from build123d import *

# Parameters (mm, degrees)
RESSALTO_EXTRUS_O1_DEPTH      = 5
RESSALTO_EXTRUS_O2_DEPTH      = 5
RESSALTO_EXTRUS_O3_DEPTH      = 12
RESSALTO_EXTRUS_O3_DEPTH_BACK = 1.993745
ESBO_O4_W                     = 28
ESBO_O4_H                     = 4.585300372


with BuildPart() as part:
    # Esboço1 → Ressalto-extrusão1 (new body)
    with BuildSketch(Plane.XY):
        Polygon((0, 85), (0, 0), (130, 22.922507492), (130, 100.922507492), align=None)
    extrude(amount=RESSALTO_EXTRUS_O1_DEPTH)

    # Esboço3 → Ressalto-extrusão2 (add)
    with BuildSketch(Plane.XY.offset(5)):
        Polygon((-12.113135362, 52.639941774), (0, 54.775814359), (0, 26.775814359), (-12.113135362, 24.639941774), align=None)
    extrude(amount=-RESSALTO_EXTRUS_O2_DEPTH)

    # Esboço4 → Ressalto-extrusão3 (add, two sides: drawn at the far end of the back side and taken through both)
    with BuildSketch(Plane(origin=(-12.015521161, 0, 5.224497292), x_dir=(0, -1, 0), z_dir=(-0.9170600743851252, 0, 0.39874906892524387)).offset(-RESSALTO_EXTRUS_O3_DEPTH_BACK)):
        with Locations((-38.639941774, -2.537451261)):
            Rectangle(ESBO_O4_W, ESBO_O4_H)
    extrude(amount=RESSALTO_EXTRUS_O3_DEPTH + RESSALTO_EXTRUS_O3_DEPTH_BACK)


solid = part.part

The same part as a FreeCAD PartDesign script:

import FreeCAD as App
import Part
import Sketcher

V = App.Vector
Q = App.Units.Quantity

doc = App.newDocument("Part")
params = doc.addObject("Spreadsheet::Sheet", "Params")
for row, (alias, value) in enumerate([
    ("sketch1_height", "85 mm"),
    ("sketch1_height2", "78 mm"),
    ("pad1_length", "5 mm"),
    ("sketch2_height", "28 mm"),
    ("sketch2_length", "12.3 mm"),
    ("pad2_length", "5 mm"),
    ("sketch3_width", "28 mm"),
    ("pad3_length", "12 mm"),
    ("pad3_length2", "1.993745 mm"),
], start=1):
    params.set(f"A{row}", alias)
    params.set(f"B{row}", "=" + value)
    params.setAlias(f"B{row}", alias)

body = doc.addObject("PartDesign::Body", "Body")

sketch1 = body.newObject("Sketcher::SketchObject", "Sketch")
sketch1.AttachmentSupport = (doc.getObject("XY_Plane"), [""])
sketch1.MapMode = "FlatFace"
sketch1.addGeometry(Part.LineSegment(V(0, 85, 0), V(0, 0, 0)), False)
sketch1.addGeometry(Part.LineSegment(V(0, 0, 0), V(130, 22.922507, 0)), False)
sketch1.addGeometry(Part.LineSegment(V(130, 22.922507, 0), V(130, 100.922507, 0)), False)
sketch1.addGeometry(Part.LineSegment(V(130, 100.922507, 0), V(0, 85, 0)), False)
sketch1.addConstraint(Sketcher.Constraint("Coincident", 0, 2, 1, 1))
sketch1.addConstraint(Sketcher.Constraint("Coincident", 1, 2, 2, 1))
sketch1.addConstraint(Sketcher.Constraint("Coincident", 2, 2, 3, 1))
sketch1.addConstraint(Sketcher.Constraint("Coincident", 3, 2, 0, 1))
sketch1.addConstraint(Sketcher.Constraint("Vertical", 0))
sketch1.addConstraint(Sketcher.Constraint("Vertical", 2))
sketch1.addConstraint(Sketcher.Constraint("Coincident", 0, 2, -1, 1))
sketch1.addConstraint(Sketcher.Constraint("DistanceY", 0, 2, 0, 1, Q("85 mm")))
sketch1.addConstraint(Sketcher.Constraint("DistanceY", 2, 1, 2, 2, Q("78 mm")))
sketch1.addConstraint(Sketcher.Constraint("Angle", 1, Q("10 deg")))
sketch1.addConstraint(Sketcher.Constraint("DistanceX", -1, 1, 1, 2, Q("130 mm")))
sketch1.setExpression("Constraints[7]", "Params.sketch1_height")
sketch1.setExpression("Constraints[8]", "Params.sketch1_height2")
pad1 = body.newObject("PartDesign::Pad", "Pad")
pad1.Profile = sketch1
pad1.setExpression("Length", "Params.pad1_length")

sketch2 = body.newObject("Sketcher::SketchObject", "Sketch001")
sketch2.AttachmentSupport = (doc.getObject("XY_Plane"), [""])
sketch2.MapMode = "FlatFace"
sketch2.AttachmentOffset = App.Placement(V(0, 0, 5), App.Rotation())
sketch2.addGeometry(Part.LineSegment(V(0, 54.775814, 0), V(-12.113135, 52.639942, 0)), False)
sketch2.addGeometry(Part.LineSegment(V(-12.113135, 52.639942, 0), V(-12.113135, 24.639942, 0)), False)
sketch2.addGeometry(Part.LineSegment(V(-12.113135, 24.639942, 0), V(0, 26.775814, 0)), False)
sketch2.addGeometry(Part.LineSegment(V(0, 26.775814, 0), V(0, 54.775814, 0)), False)
sketch2.addConstraint(Sketcher.Constraint("Coincident", 0, 2, 1, 1))
sketch2.addConstraint(Sketcher.Constraint("Coincident", 1, 2, 2, 1))
sketch2.addConstraint(Sketcher.Constraint("Coincident", 2, 2, 3, 1))
sketch2.addConstraint(Sketcher.Constraint("Coincident", 3, 2, 0, 1))
sketch2.addConstraint(Sketcher.Constraint("Vertical", 1))
sketch2.addConstraint(Sketcher.Constraint("Vertical", 3))
sketch2.addConstraint(Sketcher.Constraint("PointOnObject", 2, 2, -2))
sketch2.addConstraint(Sketcher.Constraint("Parallel", 0, 2))
sketch2.addConstraint(Sketcher.Constraint("DistanceY", 1, 2, 1, 1, Q("28 mm")))
sketch2.addConstraint(Sketcher.Constraint("Angle", 0, Q("-170 deg")))
sketch2.addConstraint(Sketcher.Constraint("Distance", 0, Q("12.3 mm")))
sketch2.addConstraint(Sketcher.Constraint("DistanceY", -1, 1, 0, 2, Q("52.639942 mm")))
sketch2.setExpression("Constraints[8]", "Params.sketch2_height")
sketch2.setExpression("Constraints[10]", "Params.sketch2_length")
pad2 = body.newObject("PartDesign::Pad", "Pad001")
pad2.Profile = sketch2
pad2.setExpression("Length", "Params.pad2_length")
pad2.Reversed = True

sketch3 = body.newObject("Sketcher::SketchObject", "Sketch002")
sketch3.Placement = App.Placement(V(-12.015521, 0, 5.224497), App.Rotation(V(0, -1, 0), V(0.398749069, 0, 0.917060074), V(-0.917060074, 0, 0.398749069), "ZXY"))
sketch3.addGeometry(Part.LineSegment(V(-52.639942, -0.244801, 0), V(-52.639942, -4.830101, 0)), False)
sketch3.addGeometry(Part.LineSegment(V(-52.639942, -4.830101, 0), V(-24.639942, -4.830101, 0)), False)
sketch3.addGeometry(Part.LineSegment(V(-24.639942, -4.830101, 0), V(-24.639942, -0.244801, 0)), False)
sketch3.addGeometry(Part.LineSegment(V(-24.639942, -0.244801, 0), V(-52.639942, -0.244801, 0)), False)
sketch3.addConstraint(Sketcher.Constraint("Coincident", 0, 2, 1, 1))
sketch3.addConstraint(Sketcher.Constraint("Coincident", 1, 2, 2, 1))
sketch3.addConstraint(Sketcher.Constraint("Coincident", 2, 2, 3, 1))
sketch3.addConstraint(Sketcher.Constraint("Coincident", 3, 2, 0, 1))
sketch3.addConstraint(Sketcher.Constraint("Vertical", 0))
sketch3.addConstraint(Sketcher.Constraint("Horizontal", 1))
sketch3.addConstraint(Sketcher.Constraint("Vertical", 2))
sketch3.addConstraint(Sketcher.Constraint("Horizontal", 3))
sketch3.addConstraint(Sketcher.Constraint("DistanceX", 1, 1, 1, 2, Q("28 mm")))
sketch3.addConstraint(Sketcher.Constraint("DistanceY", 0, 2, 0, 1, Q("4.5853 mm")))
sketch3.addConstraint(Sketcher.Constraint("DistanceY", 0, 2, -1, 1, Q("4.830101 mm")))
sketch3.addConstraint(Sketcher.Constraint("DistanceX", 0, 2, -1, 1, Q("52.639942 mm")))
sketch3.setExpression("Constraints[8]", "Params.sketch3_width")
pad3 = body.newObject("PartDesign::Pad", "Pad002")
pad3.Profile = sketch3
pad3.Type = "TwoLengths"
pad3.setExpression("Length", "Params.pad3_length")
pad3.setExpression("Length2", "Params.pad3_length2")

doc.recompute()
